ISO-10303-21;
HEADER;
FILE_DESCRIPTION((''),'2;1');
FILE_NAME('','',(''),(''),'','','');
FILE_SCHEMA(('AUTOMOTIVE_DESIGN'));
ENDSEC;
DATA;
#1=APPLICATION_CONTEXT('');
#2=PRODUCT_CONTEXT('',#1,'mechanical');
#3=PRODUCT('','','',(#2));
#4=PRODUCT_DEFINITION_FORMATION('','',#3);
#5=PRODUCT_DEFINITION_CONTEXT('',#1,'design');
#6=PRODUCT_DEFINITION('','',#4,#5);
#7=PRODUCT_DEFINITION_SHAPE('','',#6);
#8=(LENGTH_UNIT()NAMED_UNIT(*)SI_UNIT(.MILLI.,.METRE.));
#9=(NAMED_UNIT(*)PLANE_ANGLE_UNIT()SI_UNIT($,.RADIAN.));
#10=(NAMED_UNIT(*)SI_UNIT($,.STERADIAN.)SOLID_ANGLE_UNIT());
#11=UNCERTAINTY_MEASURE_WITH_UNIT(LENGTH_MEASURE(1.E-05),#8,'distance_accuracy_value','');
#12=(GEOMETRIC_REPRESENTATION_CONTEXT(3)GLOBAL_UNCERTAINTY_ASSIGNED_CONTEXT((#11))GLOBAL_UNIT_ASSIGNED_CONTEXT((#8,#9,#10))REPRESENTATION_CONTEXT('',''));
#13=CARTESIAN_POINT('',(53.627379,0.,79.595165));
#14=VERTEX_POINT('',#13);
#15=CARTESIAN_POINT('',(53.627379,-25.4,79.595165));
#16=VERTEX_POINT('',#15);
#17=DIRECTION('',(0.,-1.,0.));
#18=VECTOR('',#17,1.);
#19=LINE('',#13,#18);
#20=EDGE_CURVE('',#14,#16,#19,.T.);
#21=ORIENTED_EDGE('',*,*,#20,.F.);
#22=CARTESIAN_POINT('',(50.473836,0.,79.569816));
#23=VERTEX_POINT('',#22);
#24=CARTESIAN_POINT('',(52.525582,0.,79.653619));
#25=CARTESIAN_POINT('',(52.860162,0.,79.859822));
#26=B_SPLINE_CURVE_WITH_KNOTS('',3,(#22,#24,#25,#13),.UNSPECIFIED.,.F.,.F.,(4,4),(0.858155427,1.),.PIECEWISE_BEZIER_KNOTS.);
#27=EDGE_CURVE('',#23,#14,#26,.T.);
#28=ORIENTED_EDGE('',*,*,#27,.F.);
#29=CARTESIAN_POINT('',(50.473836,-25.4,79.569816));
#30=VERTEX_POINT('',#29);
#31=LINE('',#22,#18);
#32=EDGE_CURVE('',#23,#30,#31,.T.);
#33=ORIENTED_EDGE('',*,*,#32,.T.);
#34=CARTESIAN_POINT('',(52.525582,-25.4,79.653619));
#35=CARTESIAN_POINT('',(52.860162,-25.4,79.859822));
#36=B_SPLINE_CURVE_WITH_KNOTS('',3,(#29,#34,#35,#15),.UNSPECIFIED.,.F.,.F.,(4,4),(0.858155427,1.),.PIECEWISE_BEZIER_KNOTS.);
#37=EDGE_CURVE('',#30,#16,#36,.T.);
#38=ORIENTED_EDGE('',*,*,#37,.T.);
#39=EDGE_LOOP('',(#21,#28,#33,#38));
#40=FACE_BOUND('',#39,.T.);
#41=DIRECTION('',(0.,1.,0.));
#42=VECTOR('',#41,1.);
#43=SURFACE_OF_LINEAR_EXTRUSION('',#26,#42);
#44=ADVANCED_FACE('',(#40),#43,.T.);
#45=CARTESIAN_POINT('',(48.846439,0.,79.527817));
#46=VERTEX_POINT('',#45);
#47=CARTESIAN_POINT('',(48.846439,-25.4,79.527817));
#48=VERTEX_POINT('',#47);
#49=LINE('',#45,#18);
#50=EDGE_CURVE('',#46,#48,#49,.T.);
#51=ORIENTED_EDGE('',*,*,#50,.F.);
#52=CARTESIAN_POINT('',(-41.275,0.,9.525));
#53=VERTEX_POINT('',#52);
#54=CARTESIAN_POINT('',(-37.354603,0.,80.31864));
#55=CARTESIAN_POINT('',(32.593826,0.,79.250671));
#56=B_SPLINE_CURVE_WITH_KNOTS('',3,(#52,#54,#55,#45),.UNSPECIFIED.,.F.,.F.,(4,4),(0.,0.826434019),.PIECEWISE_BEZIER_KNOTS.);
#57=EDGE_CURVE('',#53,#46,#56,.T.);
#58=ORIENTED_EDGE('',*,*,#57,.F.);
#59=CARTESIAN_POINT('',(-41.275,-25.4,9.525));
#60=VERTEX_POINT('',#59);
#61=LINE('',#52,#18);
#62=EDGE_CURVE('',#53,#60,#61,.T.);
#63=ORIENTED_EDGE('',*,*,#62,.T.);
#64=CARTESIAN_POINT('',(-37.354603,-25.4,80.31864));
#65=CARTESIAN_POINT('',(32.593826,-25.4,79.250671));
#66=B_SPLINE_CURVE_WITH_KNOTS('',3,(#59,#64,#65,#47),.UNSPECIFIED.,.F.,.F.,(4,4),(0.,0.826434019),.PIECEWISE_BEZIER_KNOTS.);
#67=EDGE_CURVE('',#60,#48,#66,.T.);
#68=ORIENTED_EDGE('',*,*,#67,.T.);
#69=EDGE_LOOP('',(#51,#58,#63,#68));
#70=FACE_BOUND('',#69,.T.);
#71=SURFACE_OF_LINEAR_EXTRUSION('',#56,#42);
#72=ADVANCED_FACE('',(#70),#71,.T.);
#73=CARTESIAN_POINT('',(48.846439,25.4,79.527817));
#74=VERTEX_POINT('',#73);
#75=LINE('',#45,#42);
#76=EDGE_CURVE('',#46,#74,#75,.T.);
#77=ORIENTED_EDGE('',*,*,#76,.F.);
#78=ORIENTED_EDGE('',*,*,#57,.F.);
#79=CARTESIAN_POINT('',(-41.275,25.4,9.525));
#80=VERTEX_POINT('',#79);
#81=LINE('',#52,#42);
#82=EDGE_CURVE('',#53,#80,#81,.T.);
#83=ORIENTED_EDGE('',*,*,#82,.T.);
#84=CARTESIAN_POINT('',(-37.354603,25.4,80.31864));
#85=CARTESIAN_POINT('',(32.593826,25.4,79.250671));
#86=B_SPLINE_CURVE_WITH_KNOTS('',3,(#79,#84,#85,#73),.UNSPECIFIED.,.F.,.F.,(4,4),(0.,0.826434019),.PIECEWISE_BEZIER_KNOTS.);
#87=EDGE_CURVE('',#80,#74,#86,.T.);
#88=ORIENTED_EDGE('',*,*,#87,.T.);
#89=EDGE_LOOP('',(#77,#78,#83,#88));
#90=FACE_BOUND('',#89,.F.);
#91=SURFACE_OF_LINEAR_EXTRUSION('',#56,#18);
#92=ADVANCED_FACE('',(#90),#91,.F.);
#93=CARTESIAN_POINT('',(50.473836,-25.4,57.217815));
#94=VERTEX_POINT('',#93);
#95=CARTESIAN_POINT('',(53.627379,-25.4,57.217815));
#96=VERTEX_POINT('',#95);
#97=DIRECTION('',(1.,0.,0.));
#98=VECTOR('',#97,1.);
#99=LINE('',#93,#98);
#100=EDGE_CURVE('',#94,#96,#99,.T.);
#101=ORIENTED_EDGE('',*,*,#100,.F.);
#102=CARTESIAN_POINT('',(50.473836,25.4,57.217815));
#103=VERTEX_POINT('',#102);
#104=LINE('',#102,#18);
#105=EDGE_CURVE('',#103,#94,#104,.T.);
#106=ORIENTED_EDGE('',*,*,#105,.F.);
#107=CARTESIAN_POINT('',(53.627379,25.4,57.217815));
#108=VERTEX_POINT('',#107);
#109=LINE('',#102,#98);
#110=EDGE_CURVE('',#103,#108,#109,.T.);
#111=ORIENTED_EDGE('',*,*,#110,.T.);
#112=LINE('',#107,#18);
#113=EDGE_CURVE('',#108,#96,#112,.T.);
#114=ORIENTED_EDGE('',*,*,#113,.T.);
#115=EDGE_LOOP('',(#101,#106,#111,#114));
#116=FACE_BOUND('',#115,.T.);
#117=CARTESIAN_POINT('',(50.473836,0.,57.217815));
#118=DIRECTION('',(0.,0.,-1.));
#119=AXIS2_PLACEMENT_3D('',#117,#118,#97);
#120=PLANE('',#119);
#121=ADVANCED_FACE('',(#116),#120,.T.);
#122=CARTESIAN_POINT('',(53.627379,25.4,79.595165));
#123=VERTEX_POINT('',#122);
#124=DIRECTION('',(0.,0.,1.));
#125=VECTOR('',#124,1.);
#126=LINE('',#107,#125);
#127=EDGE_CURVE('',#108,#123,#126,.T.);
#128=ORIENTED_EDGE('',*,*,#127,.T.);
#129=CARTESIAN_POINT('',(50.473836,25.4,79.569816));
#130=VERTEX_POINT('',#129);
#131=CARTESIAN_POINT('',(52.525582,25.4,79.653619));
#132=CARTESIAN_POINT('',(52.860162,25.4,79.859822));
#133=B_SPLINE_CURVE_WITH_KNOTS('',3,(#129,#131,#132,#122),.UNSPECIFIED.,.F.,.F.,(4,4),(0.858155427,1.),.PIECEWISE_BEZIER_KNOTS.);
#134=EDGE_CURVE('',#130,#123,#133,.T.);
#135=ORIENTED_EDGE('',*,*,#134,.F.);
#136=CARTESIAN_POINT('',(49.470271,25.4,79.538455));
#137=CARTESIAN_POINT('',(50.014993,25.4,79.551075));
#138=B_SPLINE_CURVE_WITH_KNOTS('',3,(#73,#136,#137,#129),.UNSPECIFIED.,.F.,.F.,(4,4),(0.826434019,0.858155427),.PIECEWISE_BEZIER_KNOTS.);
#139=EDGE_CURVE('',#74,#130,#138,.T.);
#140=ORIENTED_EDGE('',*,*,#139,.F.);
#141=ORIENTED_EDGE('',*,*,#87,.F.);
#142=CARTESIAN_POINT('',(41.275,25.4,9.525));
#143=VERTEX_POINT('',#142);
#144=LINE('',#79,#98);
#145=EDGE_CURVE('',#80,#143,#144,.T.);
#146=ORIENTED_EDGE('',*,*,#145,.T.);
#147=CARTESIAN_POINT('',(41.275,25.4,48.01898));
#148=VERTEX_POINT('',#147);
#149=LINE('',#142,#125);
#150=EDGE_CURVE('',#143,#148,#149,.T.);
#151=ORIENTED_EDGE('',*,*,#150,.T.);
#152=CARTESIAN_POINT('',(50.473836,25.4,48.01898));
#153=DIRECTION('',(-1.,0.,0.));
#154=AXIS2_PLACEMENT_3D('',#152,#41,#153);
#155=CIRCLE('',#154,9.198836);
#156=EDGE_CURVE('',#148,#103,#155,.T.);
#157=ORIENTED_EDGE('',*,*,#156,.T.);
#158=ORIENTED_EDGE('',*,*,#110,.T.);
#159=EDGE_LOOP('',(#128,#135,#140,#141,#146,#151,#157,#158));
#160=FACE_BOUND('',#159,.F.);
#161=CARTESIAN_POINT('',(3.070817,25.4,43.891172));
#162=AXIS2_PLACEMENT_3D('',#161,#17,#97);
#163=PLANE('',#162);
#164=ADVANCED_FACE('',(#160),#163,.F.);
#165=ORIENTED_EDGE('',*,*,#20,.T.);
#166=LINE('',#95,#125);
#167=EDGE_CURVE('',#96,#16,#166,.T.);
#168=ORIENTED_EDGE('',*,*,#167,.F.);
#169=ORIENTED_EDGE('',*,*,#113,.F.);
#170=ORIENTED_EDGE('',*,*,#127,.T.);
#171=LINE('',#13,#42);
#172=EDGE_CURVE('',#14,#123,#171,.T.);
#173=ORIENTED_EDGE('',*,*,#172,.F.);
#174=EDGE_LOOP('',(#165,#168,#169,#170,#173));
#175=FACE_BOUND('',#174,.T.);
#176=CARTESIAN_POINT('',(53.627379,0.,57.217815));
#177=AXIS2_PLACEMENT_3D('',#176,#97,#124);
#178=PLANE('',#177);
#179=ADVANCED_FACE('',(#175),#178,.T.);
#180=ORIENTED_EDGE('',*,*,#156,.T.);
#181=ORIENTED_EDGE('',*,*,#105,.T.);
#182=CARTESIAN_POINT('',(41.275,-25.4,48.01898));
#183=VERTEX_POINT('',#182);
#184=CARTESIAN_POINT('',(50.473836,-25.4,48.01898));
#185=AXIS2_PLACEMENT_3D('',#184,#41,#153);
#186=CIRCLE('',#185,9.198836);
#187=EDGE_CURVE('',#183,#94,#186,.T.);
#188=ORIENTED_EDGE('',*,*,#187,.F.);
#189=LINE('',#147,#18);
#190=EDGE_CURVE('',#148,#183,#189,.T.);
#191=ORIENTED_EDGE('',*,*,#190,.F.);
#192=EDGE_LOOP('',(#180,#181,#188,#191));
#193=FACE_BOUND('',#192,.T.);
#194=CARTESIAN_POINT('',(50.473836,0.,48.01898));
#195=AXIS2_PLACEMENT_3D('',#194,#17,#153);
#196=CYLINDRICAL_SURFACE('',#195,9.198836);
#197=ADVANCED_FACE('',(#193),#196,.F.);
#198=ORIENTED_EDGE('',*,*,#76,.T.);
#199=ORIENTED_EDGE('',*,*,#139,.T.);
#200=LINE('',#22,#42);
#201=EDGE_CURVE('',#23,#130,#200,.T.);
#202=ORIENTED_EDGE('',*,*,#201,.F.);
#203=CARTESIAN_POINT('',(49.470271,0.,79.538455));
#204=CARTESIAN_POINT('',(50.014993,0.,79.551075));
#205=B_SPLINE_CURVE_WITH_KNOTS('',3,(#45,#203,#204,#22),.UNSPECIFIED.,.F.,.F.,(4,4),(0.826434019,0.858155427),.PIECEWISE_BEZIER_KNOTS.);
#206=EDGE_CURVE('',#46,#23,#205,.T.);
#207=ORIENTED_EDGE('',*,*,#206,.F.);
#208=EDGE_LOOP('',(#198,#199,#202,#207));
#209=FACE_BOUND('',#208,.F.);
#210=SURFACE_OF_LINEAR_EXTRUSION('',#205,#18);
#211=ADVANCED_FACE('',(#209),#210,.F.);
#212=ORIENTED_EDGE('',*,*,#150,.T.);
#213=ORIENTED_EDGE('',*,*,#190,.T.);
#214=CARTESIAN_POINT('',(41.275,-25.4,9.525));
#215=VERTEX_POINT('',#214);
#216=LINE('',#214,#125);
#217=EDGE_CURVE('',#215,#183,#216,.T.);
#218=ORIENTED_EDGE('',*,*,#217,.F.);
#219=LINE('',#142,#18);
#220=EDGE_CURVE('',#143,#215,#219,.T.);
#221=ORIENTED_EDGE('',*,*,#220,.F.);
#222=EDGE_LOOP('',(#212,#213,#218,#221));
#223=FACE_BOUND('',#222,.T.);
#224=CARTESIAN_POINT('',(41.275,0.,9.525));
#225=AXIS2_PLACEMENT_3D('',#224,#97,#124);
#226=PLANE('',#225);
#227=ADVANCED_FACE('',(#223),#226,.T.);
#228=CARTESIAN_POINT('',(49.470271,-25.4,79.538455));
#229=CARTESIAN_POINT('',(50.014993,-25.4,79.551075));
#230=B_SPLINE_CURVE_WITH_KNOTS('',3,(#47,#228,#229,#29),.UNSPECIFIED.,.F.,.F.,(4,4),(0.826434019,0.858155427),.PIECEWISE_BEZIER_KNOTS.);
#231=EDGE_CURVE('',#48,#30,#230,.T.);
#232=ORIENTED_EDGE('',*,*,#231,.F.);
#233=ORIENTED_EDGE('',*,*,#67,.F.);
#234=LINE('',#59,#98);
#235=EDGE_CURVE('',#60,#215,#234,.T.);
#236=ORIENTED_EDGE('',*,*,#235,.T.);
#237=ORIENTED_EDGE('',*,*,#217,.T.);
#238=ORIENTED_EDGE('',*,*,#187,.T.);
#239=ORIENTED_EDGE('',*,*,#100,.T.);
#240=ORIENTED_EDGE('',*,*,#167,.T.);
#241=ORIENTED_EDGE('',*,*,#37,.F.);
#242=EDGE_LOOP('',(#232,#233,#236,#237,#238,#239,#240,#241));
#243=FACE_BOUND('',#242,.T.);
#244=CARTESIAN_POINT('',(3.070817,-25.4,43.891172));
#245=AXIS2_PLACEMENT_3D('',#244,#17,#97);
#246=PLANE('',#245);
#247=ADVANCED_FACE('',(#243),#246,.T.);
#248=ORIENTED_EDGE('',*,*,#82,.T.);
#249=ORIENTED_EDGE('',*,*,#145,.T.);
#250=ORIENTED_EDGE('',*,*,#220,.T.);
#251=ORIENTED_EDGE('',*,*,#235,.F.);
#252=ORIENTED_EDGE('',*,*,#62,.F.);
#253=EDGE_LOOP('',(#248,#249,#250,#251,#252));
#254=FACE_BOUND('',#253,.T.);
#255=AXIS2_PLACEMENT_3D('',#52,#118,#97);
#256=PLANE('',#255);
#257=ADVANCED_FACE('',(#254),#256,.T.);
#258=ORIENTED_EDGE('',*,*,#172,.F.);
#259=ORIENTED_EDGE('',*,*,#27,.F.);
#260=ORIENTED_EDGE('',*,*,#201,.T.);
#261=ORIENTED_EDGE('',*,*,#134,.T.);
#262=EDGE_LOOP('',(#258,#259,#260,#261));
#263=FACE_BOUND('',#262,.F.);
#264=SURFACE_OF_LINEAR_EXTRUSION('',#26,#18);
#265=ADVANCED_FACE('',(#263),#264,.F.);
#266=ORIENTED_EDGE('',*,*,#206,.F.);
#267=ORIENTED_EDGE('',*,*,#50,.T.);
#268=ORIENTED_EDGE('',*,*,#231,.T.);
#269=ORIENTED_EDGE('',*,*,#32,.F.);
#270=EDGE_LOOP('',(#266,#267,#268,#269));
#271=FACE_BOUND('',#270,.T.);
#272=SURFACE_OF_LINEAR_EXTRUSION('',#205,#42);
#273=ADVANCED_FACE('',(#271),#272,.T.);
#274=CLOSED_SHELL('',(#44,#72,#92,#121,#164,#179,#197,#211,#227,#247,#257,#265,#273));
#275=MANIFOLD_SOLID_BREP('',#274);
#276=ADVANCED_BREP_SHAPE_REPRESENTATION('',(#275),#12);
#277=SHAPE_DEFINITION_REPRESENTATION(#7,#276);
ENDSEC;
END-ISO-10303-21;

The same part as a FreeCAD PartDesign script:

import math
import FreeCAD as App
import Part
import Sketcher
from FreeCAD import Vector
Q = App.Units.Quantity

doc = App.newDocument("Part")
params = doc.addObject("Spreadsheet::Sheet", "Params")
for row, (alias, value) in enumerate([
    ("sketch1_width", "3.25 in"),
    ("pad1_length", "2 in"),
], start=1):
    params.set(f"A{row}", alias)
    params.set(f"B{row}", "=" + value)
    params.setAlias(f"B{row}", alias)

body = doc.addObject("PartDesign::Body", "Body")

# Sketch on XZ plane
sketch1 = body.newObject("Sketcher::SketchObject", "Sketch")
sketch1.AttachmentSupport = (doc.getObject("XZ_Plane"), [""])
sketch1.MapMode = "FlatFace"
sketch1.addGeometry([
    Part.LineSegment(Vector(-41.275, 9.525, 0), Vector(41.275, 9.525, 0)),  # 0
    Part.LineSegment(Vector(41.275, 9.525, 0), Vector(41.275, 48.01898, 0)),  # 1
    Part.ArcOfCircle(Part.Circle(Vector(50.473836, 48.01898, 0), Vector(0, 0, 1), 9.198836), math.radians(90), math.radians(180)),  # 2
    Part.LineSegment(Vector(50.473836, 57.217815, 0), Vector(53.627379, 57.217815, 0)),  # 3
    Part.LineSegment(Vector(53.627379, 57.217815, 0), Vector(53.627379, 79.595165, 0)),  # 4
    Part.BSplineCurve([Vector(50.473836, 79.569816, 0), Vector(52.525582, 79.653619, 0), Vector(52.860162, 79.859822, 0), Vector(53.627379, 79.595165, 0)], [4, 4], [0.858155427, 1], False, 3, [1, 1, 1, 1], False),  # 5
    Part.BSplineCurve([Vector(48.846439, 79.527817, 0), Vector(49.470271, 79.538455, 0), Vector(50.014993, 79.551075, 0), Vector(50.473836, 79.569816, 0)], [4, 4], [0.826434019, 0.858155427], False, 3, [1, 1, 1, 1], False),  # 6
    Part.BSplineCurve([Vector(-41.275, 9.525, 0), Vector(-37.354603, 80.31864, 0), Vector(32.593826, 79.250671, 0), Vector(48.846439, 79.527817, 0)], [4, 4], [0, 0.826434019], False, 3, [1, 1, 1, 1], False),  # 7
], False)
sketch1.addConstraint([
    Sketcher.Constraint("Block", 5),
    Sketcher.Constraint("Block", 6),
    Sketcher.Constraint("Block", 7),
    Sketcher.Constraint("Coincident", 0, 2, 1, 1),
    Sketcher.Constraint("Tangent", 1, 2, 2, 2),
    Sketcher.Constraint("Tangent", 2, 1, 3, 1),
    Sketcher.Constraint("Coincident", 3, 2, 4, 1),
    Sketcher.Constraint("Coincident", 4, 2, 5, 2),
    Sketcher.Constraint("Coincident", 7, 1, 0, 1),
    Sketcher.Constraint("Horizontal", 0),
    Sketcher.Constraint("Vertical", 1),
    Sketcher.Constraint("Horizontal", 3),
    Sketcher.Constraint("Vertical", 4),
    Sketcher.Constraint("DistanceX", 0, 1, 0, 2, Q("3.25 in")),
    Sketcher.Constraint("Radius", 2, 9.198836),
    Sketcher.Constraint("DistanceY", 1, 1, 1, 2, 38.49398),
])
sketch1.setExpression("Constraints[13]", "Params.sketch1_width")
pad1 = body.newObject("PartDesign::Pad", "Pad")
pad1.Profile = sketch1
pad1.setExpression("Length", "Params.pad1_length")
pad1.Midplane = True

doc.recompute()
